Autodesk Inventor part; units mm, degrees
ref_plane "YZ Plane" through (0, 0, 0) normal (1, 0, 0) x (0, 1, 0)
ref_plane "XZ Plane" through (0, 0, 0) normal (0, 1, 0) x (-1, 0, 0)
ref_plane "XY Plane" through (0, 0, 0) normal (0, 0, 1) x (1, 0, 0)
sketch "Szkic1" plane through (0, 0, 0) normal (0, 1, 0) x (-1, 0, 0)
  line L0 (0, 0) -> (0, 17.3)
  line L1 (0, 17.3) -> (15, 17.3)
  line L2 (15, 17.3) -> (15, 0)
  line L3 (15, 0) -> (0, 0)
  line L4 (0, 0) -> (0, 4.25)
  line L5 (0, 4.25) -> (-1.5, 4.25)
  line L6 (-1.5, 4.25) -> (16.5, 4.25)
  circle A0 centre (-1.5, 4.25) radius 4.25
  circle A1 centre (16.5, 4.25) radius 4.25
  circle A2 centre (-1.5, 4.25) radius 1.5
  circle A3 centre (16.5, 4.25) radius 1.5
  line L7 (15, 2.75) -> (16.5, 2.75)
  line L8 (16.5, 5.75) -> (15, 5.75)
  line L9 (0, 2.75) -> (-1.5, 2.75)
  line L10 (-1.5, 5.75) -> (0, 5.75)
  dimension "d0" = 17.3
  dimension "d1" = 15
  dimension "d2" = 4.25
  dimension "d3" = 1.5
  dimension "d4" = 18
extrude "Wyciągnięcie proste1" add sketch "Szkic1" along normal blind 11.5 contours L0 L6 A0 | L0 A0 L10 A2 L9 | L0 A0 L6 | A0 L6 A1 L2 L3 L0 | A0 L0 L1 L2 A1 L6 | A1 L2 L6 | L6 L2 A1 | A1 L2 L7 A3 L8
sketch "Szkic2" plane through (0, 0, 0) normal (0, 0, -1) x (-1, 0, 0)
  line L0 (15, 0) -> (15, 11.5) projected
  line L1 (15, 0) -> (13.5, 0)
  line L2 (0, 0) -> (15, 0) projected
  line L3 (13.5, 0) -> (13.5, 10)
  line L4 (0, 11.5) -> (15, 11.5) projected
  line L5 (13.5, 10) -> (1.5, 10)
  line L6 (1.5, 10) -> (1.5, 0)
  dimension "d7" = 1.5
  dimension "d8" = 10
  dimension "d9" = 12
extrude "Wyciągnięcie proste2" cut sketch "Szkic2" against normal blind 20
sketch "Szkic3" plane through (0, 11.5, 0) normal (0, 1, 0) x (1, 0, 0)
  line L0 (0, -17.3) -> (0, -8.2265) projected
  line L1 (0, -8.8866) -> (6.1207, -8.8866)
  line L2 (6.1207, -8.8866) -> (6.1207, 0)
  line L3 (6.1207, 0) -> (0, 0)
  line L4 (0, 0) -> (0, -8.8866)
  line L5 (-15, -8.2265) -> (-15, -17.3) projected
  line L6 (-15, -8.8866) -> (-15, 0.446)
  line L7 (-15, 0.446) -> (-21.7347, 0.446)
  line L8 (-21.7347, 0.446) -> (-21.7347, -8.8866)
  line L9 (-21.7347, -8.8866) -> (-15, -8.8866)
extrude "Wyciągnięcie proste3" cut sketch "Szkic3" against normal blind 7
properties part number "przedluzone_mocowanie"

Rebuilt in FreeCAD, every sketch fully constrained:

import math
import FreeCAD as App
import Part
import Sketcher
Q = App.Units.Quantity

doc = App.newDocument("Part")
body = doc.addObject("PartDesign::Body", "Body")

# Sketch on XZ plane
sketch1 = body.newObject("Sketcher::SketchObject", "Sketch")
sketch1.AttachmentSupport = (doc.getObject("XZ_Plane"), [""])
sketch1.MapMode = "FlatFace"
sketch1.addGeometry(Part.LineSegment(App.Vector(0, 0.27, 0), App.Vector(0, 0, 0)), False)
sketch1.addGeometry(Part.LineSegment(App.Vector(0, 0, 0), App.Vector(-15, 0, 0)), False)
sketch1.addGeometry(Part.LineSegment(App.Vector(-15, 0, 0), App.Vector(-15, 0.27, 0)), False)
sketch1.addGeometry(Part.ArcOfCircle(Part.Circle(App.Vector(-16.5, 4.25, 0), App.Vector(0, 0, 1), 4.25), math.radians(69), math.radians(291)), False)
sketch1.addGeometry(Part.LineSegment(App.Vector(-15, 8.23, 0), App.Vector(-15, 17.3, 0)), False)
sketch1.addGeometry(Part.LineSegment(App.Vector(-15, 17.3, 0), App.Vector(0, 17.3, 0)), False)
sketch1.addGeometry(Part.LineSegment(App.Vector(0, 17.3, 0), App.Vector(0, 8.23, 0)), False)
sketch1.addGeometry(Part.ArcOfCircle(Part.Circle(App.Vector(1.5, 4.25, 0), App.Vector(0, 0, 1), 4.25), math.radians(-111), math.radians(111)), False)
sketch1.addGeometry(Part.LineSegment(App.Vector(0, 2.75, 0), App.Vector(1.5, 2.75, 0)), False)
sketch1.addGeometry(Part.ArcOfCircle(Part.Circle(App.Vector(1.5, 4.25, 0), App.Vector(0, 0, 1), 1.5), math.radians(-90), math.radians(90)), False)
sketch1.addGeometry(Part.LineSegment(App.Vector(1.5, 5.75, 0), App.Vector(0, 5.75, 0)), False)
sketch1.addGeometry(Part.LineSegment(App.Vector(0, 5.75, 0), App.Vector(0, 2.75, 0)), False)
sketch1.addGeometry(Part.LineSegment(App.Vector(-15, 2.75, 0), App.Vector(-15, 5.75, 0)), False)
sketch1.addGeometry(Part.LineSegment(App.Vector(-15, 5.75, 0), App.Vector(-16.5, 5.75, 0)), False)
sketch1.addGeometry(Part.ArcOfCircle(Part.Circle(App.Vector(-16.5, 4.25, 0), App.Vector(0, 0, 1), 1.5), math.radians(90), math.radians(270)), False)
sketch1.addGeometry(Part.LineSegment(App.Vector(-16.5, 2.75, 0), App.Vector(-15, 2.75, 0)), False)
sketch1.addConstraint(Sketcher.Constraint("Coincident", 0, 2, 1, 1))
sketch1.addConstraint(Sketcher.Constraint("Coincident", 1, 2, 2, 1))
sketch1.addConstraint(Sketcher.Constraint("Coincident", 2, 2, 3, 2))
sketch1.addConstraint(Sketcher.Constraint("Coincident", 3, 1, 4, 1))
sketch1.addConstraint(Sketcher.Constraint("Coincident", 4, 2, 5, 1))
sketch1.addConstraint(Sketcher.Constraint("Coincident", 5, 2, 6, 1))
sketch1.addConstraint(Sketcher.Constraint("Coincident", 6, 2, 7, 2))
sketch1.addConstraint(Sketcher.Constraint("Coincident", 7, 1, 0, 1))
sketch1.addConstraint(Sketcher.Constraint("Tangent", 8, 2, 9, 1))
sketch1.addConstraint(Sketcher.Constraint("Tangent", 9, 2, 10, 1))
sketch1.addConstraint(Sketcher.Constraint("Coincident", 10, 2, 11, 1))
sketch1.addConstraint(Sketcher.Constraint("Coincident", 11, 2, 8, 1))
sketch1.addConstraint(Sketcher.Constraint("Coincident", 12, 2, 13, 1))
sketch1.addConstraint(Sketcher.Constraint("Tangent", 13, 2, 14, 1))
sketch1.addConstraint(Sketcher.Constraint("Tangent", 14, 2, 15, 1))
sketch1.addConstraint(Sketcher.Constraint("Coincident", 15, 2, 12, 1))
sketch1.addConstraint(Sketcher.Constraint("Vertical", 0))
sketch1.addConstraint(Sketcher.Constraint("Horizontal", 1))
sketch1.addConstraint(Sketcher.Constraint("Vertical", 2))
sketch1.addConstraint(Sketcher.Constraint("Vertical", 4))
sketch1.addConstraint(Sketcher.Constraint("Horizontal", 5))
sketch1.addConstraint(Sketcher.Constraint("Vertical", 6))
sketch1.addConstraint(Sketcher.Constraint("Horizontal", 8))
sketch1.addConstraint(Sketcher.Constraint("Horizontal", 10))
sketch1.addConstraint(Sketcher.Constraint("Vertical", 11))
sketch1.addConstraint(Sketcher.Constraint("Vertical", 12))
sketch1.addConstraint(Sketcher.Constraint("Horizontal", 13))
sketch1.addConstraint(Sketcher.Constraint("Horizontal", 15))
sketch1.addConstraint(Sketcher.Constraint("Coincident", 0, 2, -1, 1))
sketch1.addConstraint(Sketcher.Constraint("Coincident", 9, 3, 7, 3))
sketch1.addConstraint(Sketcher.Constraint("Coincident", 14, 3, 3, 3))
sketch1.addConstraint(Sketcher.Constraint("Equal", 3, 7))
sketch1.addConstraint(Sketcher.Constraint("Equal", 9, 14))
sketch1.addConstraint(Sketcher.Constraint("PointOnObject", 5, 2, -2))
sketch1.addConstraint(Sketcher.Constraint("PointOnObject", 10, 2, -2))
sketch1.addConstraint(Sketcher.Constraint("Horizontal", 3, 3, 7, 3))
sketch1.addConstraint(Sketcher.Constraint("Horizontal", 3, 1, 6, 2))
sketch1.addConstraint(Sketcher.Constraint("Horizontal", 2, 2, 7, 1))
sketch1.addConstraint(Sketcher.Constraint("Vertical", 4, 2, 12, 2))
sketch1.addConstraint(Sketcher.Constraint("Radius", 9, Q("1.5 mm")))
sketch1.addConstraint(Sketcher.Constraint("DistanceX", 1, 2, 1, 1, Q("15 mm")))
sketch1.addConstraint(Sketcher.Constraint("Radius", 3, Q("4.25 mm")))
sketch1.addConstraint(Sketcher.Constraint("DistanceX", 8, 1, 8, 2, Q("1.5 mm")))
sketch1.addConstraint(Sketcher.Constraint("DistanceY", -1, 1, 4, 2, Q("17.3 mm")))
sketch1.addConstraint(Sketcher.Constraint("DistanceY", -1, 1, 3, 3, Q("4.25 mm")))
pad1 = body.newObject("PartDesign::Pad", "Pad")
pad1.Profile = sketch1
pad1.Length = 11.5
pad1.Reversed = True

# Sketch on XY plane
sketch2 = body.newObject("Sketcher::SketchObject", "Sketch001")
sketch2.AttachmentSupport = (doc.getObject("XY_Plane"), [""])
sketch2.MapMode = "FlatFace"
sketch2.addGeometry(Part.LineSegment(App.Vector(-2, 10, 0), App.Vector(-2, 0, 0)), False)
sketch2.addGeometry(Part.LineSegment(App.Vector(-2, 0, 0), App.Vector(-14, 0, 0)), False)
sketch2.addGeometry(Part.LineSegment(App.Vector(-14, 0, 0), App.Vector(-14, 10, 0)), False)
sketch2.addGeometry(Part.LineSegment(App.Vector(-14, 10, 0), App.Vector(-2, 10, 0)), False)
sketch2.addConstraint(Sketcher.Constraint("Coincident", 0, 2, 1, 1))
sketch2.addConstraint(Sketcher.Constraint("Coincident", 1, 2, 2, 1))
sketch2.addConstraint(Sketcher.Constraint("Coincident", 2, 2, 3, 1))
sketch2.addConstraint(Sketcher.Constraint("Coincident", 3, 2, 0, 1))
sketch2.addConstraint(Sketcher.Constraint("Vertical", 0))
sketch2.addConstraint(Sketcher.Constraint("Horizontal", 1))
sketch2.addConstraint(Sketcher.Constraint("Vertical", 2))
sketch2.addConstraint(Sketcher.Constraint("Horizontal", 3))
sketch2.addConstraint(Sketcher.Constraint("PointOnObject", 0, 2, -1))
sketch2.addConstraint(Sketcher.Constraint("DistanceX", 1, 2, 1, 1, Q("12 mm")))
sketch2.addConstraint(Sketcher.Constraint("DistanceY", 0, 2, 0, 1, Q("10 mm")))
sketch2.addConstraint(Sketcher.Constraint("DistanceX", 0, 2, -1, 1, Q("1.5 mm")))
pocket1 = body.newObject("PartDesign::Pocket", "Pocket")
pocket1.Profile = sketch2
pocket1.Length = 20
pocket1.Reversed = True

# Sketch on XZ plane
sketch3 = body.newObject("Sketcher::SketchObject", "Sketch002")
sketch3.AttachmentSupport = (doc.getObject("XZ_Plane"), [""])
sketch3.MapMode = "FlatFace"
sketch3.AttachmentOffset = App.Placement(App.Vector(0, 0, -11.5), App.Rotation())
sketch3.addGeometry(Part.LineSegment(App.Vector(0, 0, 0), App.Vector(0, 9, 0)), False)
sketch3.addGeometry(Part.LineSegment(App.Vector(0, 9, 0), App.Vector(6, 9, 0)), False)
sketch3.addGeometry(Part.LineSegment(App.Vector(6, 9, 0), App.Vector(6, 0, 0)), False)
sketch3.addGeometry(Part.LineSegment(App.Vector(6, 0, 0), App.Vector(0, 0, 0)), False)
sketch3.addGeometry(Part.LineSegment(App.Vector(-15, 9, 0), App.Vector(-15, 0, 0)), False)
sketch3.addGeometry(Part.LineSegment(App.Vector(-15, 0, 0), App.Vector(-22, 0, 0)), False)
sketch3.addGeometry(Part.LineSegment(App.Vector(-22, 0, 0), App.Vector(-22, 9, 0)), False)
sketch3.addGeometry(Part.LineSegment(App.Vector(-22, 9, 0), App.Vector(-15, 9, 0)), False)
sketch3.addConstraint(Sketcher.Constraint("Coincident", 0, 2, 1, 1))
sketch3.addConstraint(Sketcher.Constraint("Coincident", 1, 2, 2, 1))
sketch3.addConstraint(Sketcher.Constraint("Coincident", 2, 2, 3, 1))
sketch3.addConstraint(Sketcher.Constraint("Coincident", 3, 2, 0, 1))
sketch3.addConstraint(Sketcher.Constraint("Coincident", 4, 2, 5, 1))
sketch3.addConstraint(Sketcher.Constraint("Coincident", 5, 2, 6, 1))
sketch3.addConstraint(Sketcher.Constraint("Coincident", 6, 2, 7, 1))
sketch3.addConstraint(Sketcher.Constraint("Coincident", 7, 2, 4, 1))
sketch3.addConstraint(Sketcher.Constraint("Vertical", 0))
sketch3.addConstraint(Sketcher.Constraint("Horizontal", 1))
sketch3.addConstraint(Sketcher.Constraint("Vertical", 2))
sketch3.addConstraint(Sketcher.Constraint("Horizontal", 3))
sketch3.addConstraint(Sketcher.Constraint("Vertical", 4))
sketch3.addConstraint(Sketcher.Constraint("Horizontal", 5))
sketch3.addConstraint(Sketcher.Constraint("Vertical", 6))
sketch3.addConstraint(Sketcher.Constraint("Horizontal", 7))
sketch3.addConstraint(Sketcher.Constraint("Coincident", 3, 2, -1, 1))
sketch3.addConstraint(Sketcher.Constraint("Horizontal", 1, 2, 6, 2))
sketch3.addConstraint(Sketcher.Constraint("DistanceX", 4, 2, -1, 1, Q("15 mm")))
sketch3.addConstraint(Sketcher.Constraint("DistanceX", 1, 1, 1, 2, Q("6.1207 mm")))
sketch3.addConstraint(Sketcher.Constraint("DistanceX", 5, 2, 5, 1, Q("6.7347 mm")))
sketch3.addConstraint(Sketcher.Constraint("DistanceY", 0, 1, 0, 2, Q("8.8866 mm")))
sketch3.addConstraint(Sketcher.Constraint("DistanceY", 4, 2, 4, 1, Q("9.3326 mm")))
pocket2 = body.newObject("PartDesign::Pocket", "Pocket001")
pocket2.Profile = sketch3
pocket2.Length = 7
pocket2.Reversed = True

doc.recompute()
